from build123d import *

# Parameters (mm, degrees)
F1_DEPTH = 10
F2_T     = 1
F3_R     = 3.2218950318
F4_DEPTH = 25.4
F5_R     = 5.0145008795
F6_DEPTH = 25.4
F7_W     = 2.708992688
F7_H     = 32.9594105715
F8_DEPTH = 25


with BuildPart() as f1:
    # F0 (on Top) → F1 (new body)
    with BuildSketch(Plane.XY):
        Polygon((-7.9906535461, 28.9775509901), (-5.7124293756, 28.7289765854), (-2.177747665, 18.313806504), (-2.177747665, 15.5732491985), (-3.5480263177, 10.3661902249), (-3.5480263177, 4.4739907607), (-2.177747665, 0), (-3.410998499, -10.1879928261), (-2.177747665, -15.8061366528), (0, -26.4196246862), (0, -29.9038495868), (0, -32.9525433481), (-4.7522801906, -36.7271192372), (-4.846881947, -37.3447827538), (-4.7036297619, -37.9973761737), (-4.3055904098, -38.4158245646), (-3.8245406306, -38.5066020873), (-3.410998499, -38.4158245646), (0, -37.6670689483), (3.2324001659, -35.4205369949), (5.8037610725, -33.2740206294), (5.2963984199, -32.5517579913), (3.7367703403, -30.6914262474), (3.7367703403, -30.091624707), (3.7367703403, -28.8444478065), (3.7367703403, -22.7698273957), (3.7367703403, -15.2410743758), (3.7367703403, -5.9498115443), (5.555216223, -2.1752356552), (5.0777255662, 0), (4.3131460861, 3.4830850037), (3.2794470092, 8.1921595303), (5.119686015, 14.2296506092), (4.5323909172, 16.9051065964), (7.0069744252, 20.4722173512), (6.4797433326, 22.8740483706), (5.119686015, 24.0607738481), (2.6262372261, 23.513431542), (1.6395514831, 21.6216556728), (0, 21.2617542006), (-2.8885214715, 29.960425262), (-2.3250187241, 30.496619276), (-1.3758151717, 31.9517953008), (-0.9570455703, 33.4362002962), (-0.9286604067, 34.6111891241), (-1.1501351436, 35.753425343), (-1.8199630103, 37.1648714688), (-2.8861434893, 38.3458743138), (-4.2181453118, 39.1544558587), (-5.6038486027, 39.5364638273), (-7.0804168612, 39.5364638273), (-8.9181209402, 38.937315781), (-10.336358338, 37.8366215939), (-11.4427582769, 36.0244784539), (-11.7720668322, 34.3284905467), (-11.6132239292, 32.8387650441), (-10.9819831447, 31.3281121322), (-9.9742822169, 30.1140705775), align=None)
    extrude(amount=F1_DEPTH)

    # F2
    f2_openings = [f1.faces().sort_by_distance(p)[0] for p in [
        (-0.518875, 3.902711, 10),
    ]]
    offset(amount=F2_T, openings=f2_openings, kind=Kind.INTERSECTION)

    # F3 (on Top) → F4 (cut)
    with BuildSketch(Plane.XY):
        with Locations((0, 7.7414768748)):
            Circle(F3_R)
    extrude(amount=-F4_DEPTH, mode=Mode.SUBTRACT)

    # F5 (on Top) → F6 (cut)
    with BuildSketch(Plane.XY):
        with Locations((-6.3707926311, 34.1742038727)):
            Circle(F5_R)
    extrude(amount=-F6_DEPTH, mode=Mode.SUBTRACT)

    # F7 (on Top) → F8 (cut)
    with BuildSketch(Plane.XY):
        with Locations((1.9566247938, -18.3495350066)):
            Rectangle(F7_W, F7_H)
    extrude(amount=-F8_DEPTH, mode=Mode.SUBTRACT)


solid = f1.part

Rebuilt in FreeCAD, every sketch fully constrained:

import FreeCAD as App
import Part
import Sketcher
from FreeCAD import Vector


def faces_at(feature, points):
    """Names of the faces that lie closest to the given points."""
    faces = feature.Shape.Faces
    near = lambda p: min(range(len(faces)), key=lambda i: faces[i].distToShape(Part.Vertex(*p))[0])
    return sorted({f"Face{near(p) + 1}" for p in points})

doc = App.newDocument("Part")
params = doc.addObject("Spreadsheet::Sheet", "Params")
for row, (alias, value) in enumerate([
    ("pad1_length", "10 mm"),
    ("thickness_wall", "1 mm"),
    ("pocket1_length", "25.4 mm"),
    ("pocket2_length", "25.4 mm"),
    ("pocket3_length", "25 mm"),
], start=1):
    params.set(f"A{row}", alias)
    params.set(f"B{row}", "=" + value)
    params.setAlias(f"B{row}", alias)

body = doc.addObject("PartDesign::Body", "Body")

sketch1 = body.newObject("Sketcher::SketchObject", "Sketch")
sketch1.AttachmentSupport = (doc.getObject("XY_Plane"), [""])
sketch1.MapMode = "FlatFace"
sketch1.addGeometry([
    Part.LineSegment(Vector(-7.990654, 28.977551, 0), Vector(-5.712429, 28.728977, 0)),
    Part.LineSegment(Vector(-5.712429, 28.728977, 0), Vector(-2.177748, 18.313807, 0)),
    Part.LineSegment(Vector(-2.177748, 18.313807, 0), Vector(-2.177748, 15.573249, 0)),
    Part.LineSegment(Vector(-2.177748, 15.573249, 0), Vector(-3.548026, 10.36619, 0)),
    Part.LineSegment(Vector(-3.548026, 10.36619, 0), Vector(-3.548026, 4.473991, 0)),
    Part.LineSegment(Vector(-3.548026, 4.473991, 0), Vector(-2.177748, 0, 0)),
    Part.LineSegment(Vector(-2.177748, 0, 0), Vector(-3.410998, -10.187993, 0)),
    Part.LineSegment(Vector(-3.410998, -10.187993, 0), Vector(-2.177748, -15.806137, 0)),
    Part.LineSegment(Vector(-2.177748, -15.806137, 0), Vector(0, -26.419625, 0)),
    Part.LineSegment(Vector(0, -26.419625, 0), Vector(0, -32.952543, 0)),
    Part.LineSegment(Vector(0, -32.952543, 0), Vector(-4.75228, -36.727119, 0)),
    Part.LineSegment(Vector(-4.75228, -36.727119, 0), Vector(-4.846882, -37.344783, 0)),
    Part.LineSegment(Vector(-4.846882, -37.344783, 0), Vector(-4.70363, -37.997376, 0)),
    Part.LineSegment(Vector(-4.70363, -37.997376, 0), Vector(-4.30559, -38.415825, 0)),
    Part.LineSegment(Vector(-4.30559, -38.415825, 0), Vector(-3.824541, -38.506602, 0)),
    Part.LineSegment(Vector(-3.824541, -38.506602, 0), Vector(-3.410998, -38.415825, 0)),
    Part.LineSegment(Vector(-3.410998, -38.415825, 0), Vector(0, -37.667069, 0)),
    Part.LineSegment(Vector(0, -37.667069, 0), Vector(3.2324, -35.420537, 0)),
    Part.LineSegment(Vector(3.2324, -35.420537, 0), Vector(5.803761, -33.274021, 0)),
    Part.LineSegment(Vector(5.803761, -33.274021, 0), Vector(5.296398, -32.551758, 0)),
    Part.LineSegment(Vector(5.296398, -32.551758, 0), Vector(3.73677, -30.691426, 0)),
    Part.LineSegment(Vector(3.73677, -30.691426, 0), Vector(3.73677, -5.949812, 0)),
    Part.LineSegment(Vector(3.73677, -5.949812, 0), Vector(5.555216, -2.175236, 0)),
    Part.LineSegment(Vector(5.555216, -2.175236, 0), Vector(5.077726, 0, 0)),
    Part.LineSegment(Vector(5.077726, 0, 0), Vector(4.313146, 3.483085, 0)),
    Part.LineSegment(Vector(4.313146, 3.483085, 0), Vector(3.279447, 8.19216, 0)),
    Part.LineSegment(Vector(3.279447, 8.19216, 0), Vector(5.119686, 14.229651, 0)),
    Part.LineSegment(Vector(5.119686, 14.229651, 0), Vector(4.532391, 16.905107, 0)),
    Part.LineSegment(Vector(4.532391, 16.905107, 0), Vector(7.006974, 20.472217, 0)),
    Part.LineSegment(Vector(7.006974, 20.472217, 0), Vector(6.479743, 22.874048, 0)),
    Part.LineSegment(Vector(6.479743, 22.874048, 0), Vector(5.119686, 24.060774, 0)),
    Part.LineSegment(Vector(5.119686, 24.060774, 0), Vector(2.626237, 23.513432, 0)),
    Part.LineSegment(Vector(2.626237, 23.513432, 0), Vector(1.639551, 21.621656, 0)),
    Part.LineSegment(Vector(1.639551, 21.621656, 0), Vector(0, 21.261754, 0)),
    Part.LineSegment(Vector(0, 21.261754, 0), Vector(-2.888521, 29.960425, 0)),
    Part.LineSegment(Vector(-2.888521, 29.960425, 0), Vector(-2.325019, 30.496619, 0)),
    Part.LineSegment(Vector(-2.325019, 30.496619, 0), Vector(-1.375815, 31.951795, 0)),
    Part.LineSegment(Vector(-1.375815, 31.951795, 0), Vector(-0.957046, 33.4362, 0)),
    Part.LineSegment(Vector(-0.957046, 33.4362, 0), Vector(-0.92866, 34.611189, 0)),
    Part.LineSegment(Vector(-0.92866, 34.611189, 0), Vector(-1.150135, 35.753425, 0)),
    Part.LineSegment(Vector(-1.150135, 35.753425, 0), Vector(-1.819963, 37.164871, 0)),
    Part.LineSegment(Vector(-1.819963, 37.164871, 0), Vector(-2.886143, 38.345874, 0)),
    Part.LineSegment(Vector(-2.886143, 38.345874, 0), Vector(-4.218145, 39.154456, 0)),
    Part.LineSegment(Vector(-4.218145, 39.154456, 0), Vector(-5.603849, 39.536464, 0)),
    Part.LineSegment(Vector(-5.603849, 39.536464, 0), Vector(-7.080417, 39.536464, 0)),
    Part.LineSegment(Vector(-7.080417, 39.536464, 0), Vector(-8.918121, 38.937316, 0)),
    Part.LineSegment(Vector(-8.918121, 38.937316, 0), Vector(-10.336358, 37.836622, 0)),
    Part.LineSegment(Vector(-10.336358, 37.836622, 0), Vector(-11.442758, 36.024478, 0)),
    Part.LineSegment(Vector(-11.442758, 36.024478, 0), Vector(-11.772067, 34.328491, 0)),
    Part.LineSegment(Vector(-11.772067, 34.328491, 0), Vector(-11.613224, 32.838765, 0)),
    Part.LineSegment(Vector(-11.613224, 32.838765, 0), Vector(-10.981983, 31.328112, 0)),
    Part.LineSegment(Vector(-10.981983, 31.328112, 0), Vector(-9.974282, 30.114071, 0)),
    Part.LineSegment(Vector(-9.974282, 30.114071, 0), Vector(-7.990654, 28.977551, 0)),
], False)
sketch1.addConstraint([
    Sketcher.Constraint("Coincident", 0, 2, 1, 1),
    Sketcher.Constraint("Coincident", 1, 2, 2, 1),
    Sketcher.Constraint("Coincident", 2, 2, 3, 1),
    Sketcher.Constraint("Coincident", 3, 2, 4, 1),
    Sketcher.Constraint("Coincident", 4, 2, 5, 1),
    Sketcher.Constraint("Coincident", 5, 2, 6, 1),
    Sketcher.Constraint("Coincident", 6, 2, 7, 1),
    Sketcher.Constraint("Coincident", 7, 2, 8, 1),
    Sketcher.Constraint("Coincident", 8, 2, 9, 1),
    Sketcher.Constraint("Coincident", 9, 2, 10, 1),
    Sketcher.Constraint("Coincident", 10, 2, 11, 1),
    Sketcher.Constraint("Coincident", 11, 2, 12, 1),
    Sketcher.Constraint("Coincident", 12, 2, 13, 1),
    Sketcher.Constraint("Coincident", 13, 2, 14, 1),
    Sketcher.Constraint("Coincident", 14, 2, 15, 1),
    Sketcher.Constraint("Coincident", 15, 2, 16, 1),
    Sketcher.Constraint("Coincident", 16, 2, 17, 1),
    Sketcher.Constraint("Coincident", 17, 2, 18, 1),
    Sketcher.Constraint("Coincident", 18, 2, 19, 1),
    Sketcher.Constraint("Coincident", 19, 2, 20, 1),
    Sketcher.Constraint("Coincident", 20, 2, 21, 1),
    Sketcher.Constraint("Coincident", 21, 2, 22, 1),
    Sketcher.Constraint("Coincident", 22, 2, 23, 1),
    Sketcher.Constraint("Coincident", 23, 2, 24, 1),
    Sketcher.Constraint("Coincident", 24, 2, 25, 1),
    Sketcher.Constraint("Coincident", 25, 2, 26, 1),
    Sketcher.Constraint("Coincident", 26, 2, 27, 1),
    Sketcher.Constraint("Coincident", 27, 2, 28, 1),
    Sketcher.Constraint("Coincident", 28, 2, 29, 1),
    Sketcher.Constraint("Coincident", 29, 2, 30, 1),
    Sketcher.Constraint("Coincident", 30, 2, 31, 1),
    Sketcher.Constraint("Coincident", 31, 2, 32, 1),
    Sketcher.Constraint("Coincident", 32, 2, 33, 1),
    Sketcher.Constraint("Coincident", 33, 2, 34, 1),
    Sketcher.Constraint("Coincident", 34, 2, 35, 1),
    Sketcher.Constraint("Coincident", 35, 2, 36, 1),
    Sketcher.Constraint("Coincident", 36, 2, 37, 1),
    Sketcher.Constraint("Coincident", 37, 2, 38, 1),
    Sketcher.Constraint("Coincident", 38, 2, 39, 1),
    Sketcher.Constraint("Coincident", 39, 2, 40, 1),
    Sketcher.Constraint("Coincident", 40, 2, 41, 1),
    Sketcher.Constraint("Coincident", 41, 2, 42, 1),
    Sketcher.Constraint("Coincident", 42, 2, 43, 1),
    Sketcher.Constraint("Coincident", 43, 2, 44, 1),
    Sketcher.Constraint("Coincident", 44, 2, 45, 1),
    Sketcher.Constraint("Coincident", 45, 2, 46, 1),
    Sketcher.Constraint("Coincident", 46, 2, 47, 1),
    Sketcher.Constraint("Coincident", 47, 2, 48, 1),
    Sketcher.Constraint("Coincident", 48, 2, 49, 1),
    Sketcher.Constraint("Coincident", 49, 2, 50, 1),
    Sketcher.Constraint("Coincident", 50, 2, 51, 1),
    Sketcher.Constraint("Coincident", 51, 2, 52, 1),
    Sketcher.Constraint("Coincident", 52, 2, 0, 1),
    Sketcher.Constraint("Vertical", 2),
    Sketcher.Constraint("Vertical", 4),
    Sketcher.Constraint("Vertical", 9),
    Sketcher.Constraint("Vertical", 21),
    Sketcher.Constraint("Horizontal", 44),
    Sketcher.Constraint("PointOnObject", 5, 2, -1),
    Sketcher.Constraint("PointOnObject", 8, 2, -2),
    Sketcher.Constraint("PointOnObject", 16, 2, -2),
    Sketcher.Constraint("PointOnObject", 23, 2, -1),
    Sketcher.Constraint("PointOnObject", 33, 2, -2),
    Sketcher.Constraint("Parallel", 7, 12),
    Sketcher.Constraint("Perpendicular", 12, 15),
    Sketcher.Constraint("Parallel", 15, 16),
    Sketcher.Constraint("Perpendicular", 16, 23),
    Sketcher.Constraint("Parallel", 23, 24),
    Sketcher.Constraint("Parallel", 24, 25),
    Sketcher.Constraint("Parallel", 25, 27),
    Sketcher.Constraint("Parallel", 27, 29),
    Sketcher.Constraint("Perpendicular", 29, 31),
    Sketcher.Constraint("Parallel", 31, 33),
    Sketcher.Constraint("Horizontal", 13, 2, 15, 2),
    Sketcher.Constraint("Vertical", 2, 2, 5, 2),
    Sketcher.Constraint("Vertical", 5, 2, 7, 2),
    Sketcher.Constraint("Vertical", 6, 2, 15, 2),
    Sketcher.Constraint("Vertical", 26, 2, 30, 2),
    Sketcher.Constraint("DistanceY", 4, 2, 4, 1, 5.892199),
    Sketcher.Constraint("DistanceX", 6, 2, -1, 1, 3.410998),
    Sketcher.Constraint("DistanceX", 17, 2, 19, 2, 2.063998),
    Sketcher.Constraint("DistanceY", 21, 2, 3, 2, 16.316002),
    Sketcher.Constraint("DistanceY", 34, 2, 39, 2, 5.793),
    Sketcher.Constraint("DistanceX", 42, 2, 41, 2, 1.332002),
    Sketcher.Constraint("Distance", 47, 2.123201),
    Sketcher.Constraint("DistanceX", 44, 2, 44, 1, 1.476568),
    Sketcher.Constraint("DistanceY", 9, 2, 9, 1, 6.532919),
    Sketcher.Constraint("DistanceX", -1, 1, 17, 2, 3.2324),
    Sketcher.Constraint("DistanceY", -1, 1, 37, 2, 33.4362),
    Sketcher.Constraint("DistanceY", 6, 2, 1, 2, 28.501799),
    Sketcher.Constraint("DistanceX", 11, 2, 10, 2, 0.094602),
    Sketcher.Constraint("DistanceY", 13, 2, 8, 2, 11.9962),
    Sketcher.Constraint("DistanceY", 20, 2, 8, 2, 4.271802),
    Sketcher.Constraint("DistanceX", 25, 2, 24, 2, 1.033699),
    Sketcher.Constraint("DistanceY", 26, 2, 2, 2, 1.343599),
    Sketcher.Constraint("DistanceY", 27, 2, 1, 2, 1.4087),
    Sketcher.Constraint("DistanceY", 2, 2, 29, 2, 7.300799),
    Sketcher.Constraint("DistanceX", 1, 2, 32, 2, 3.817299),
    Sketcher.Constraint("DistanceY", 33, 2, 32, 2, 0.359901),
    Sketcher.Constraint("DistanceX", 36, 2, 30, 2, 6.495501),
    Sketcher.Constraint("DistanceX", 42, 2, 37, 2, 3.2611),
    Sketcher.Constraint("DistanceX", 47, 2, 46, 2, 1.1064),
    Sketcher.Constraint("DistanceX", 50, 2, 51, 2, 1.007701),
    Sketcher.Constraint("Distance", 3, 5.384341),
    Sketcher.Constraint("Distance", 5, 4.67913),
    Sketcher.Constraint("Distance", 7, 5.751908),
    Sketcher.Constraint("Distance", 12, 0.668131),
    Sketcher.Constraint("Distance", 14, 0.48954),
    Sketcher.Constraint("Distance", 15, 0.423388),
    Sketcher.Constraint("Distance", 17, 3.936409),
    Sketcher.Constraint("Distance", 18, 3.349542),
    Sketcher.Constraint("Distance", 22, 4.18977),
    Sketcher.Constraint("Distance", 28, 4.34141),
    Sketcher.Constraint("Distance", 34, 9.165721),
    Sketcher.Constraint("Distance", 36, 1.73739),
    Sketcher.Constraint("Distance", 38, 1.175332),
    Sketcher.Constraint("Distance", 39, 1.16351),
    Sketcher.Constraint("Distance", 40, 1.562322),
    Sketcher.Constraint("Distance", 41, 1.591072),
    Sketcher.Constraint("Distance", 45, 1.932908),
    Sketcher.Constraint("Distance", 46, 1.795251),
    Sketcher.Constraint("Distance", 49, 1.49817),
    Sketcher.Constraint("Distance", 51, 1.57777),
    Sketcher.Constraint("DistanceY", 2, 2, 2, 1, 2.740557),
    Sketcher.Constraint("DistanceY", 21, 1, 21, 2, 24.741615),
    Sketcher.Constraint("DistanceX", 0, 2, -1, 1, 5.712429),
    Sketcher.Constraint("DistanceY", -1, 1, 2, 2, 15.573249),
    Sketcher.Constraint("DistanceX", 10, 2, -1, 1, 4.75228),
    Sketcher.Constraint("DistanceY", 10, 2, -1, 1, 36.727119),
    Sketcher.Constraint("DistanceX", -1, 1, 18, 2, 5.803761),
    Sketcher.Constraint("DistanceX", -1, 1, 20, 2, 3.73677),
    Sketcher.Constraint("DistanceY", -1, 1, 25, 2, 8.19216),
    Sketcher.Constraint("DistanceX", -1, 1, 27, 2, 4.532391),
    Sketcher.Constraint("DistanceY", -1, 1, 31, 2, 23.513432),
    Sketcher.Constraint("DistanceX", 34, 2, -1, 1, 2.888521),
    Sketcher.Constraint("DistanceX", 35, 2, -1, 1, 2.325019),
    Sketcher.Constraint("DistanceY", -1, 1, 35, 2, 30.496619),
    Sketcher.Constraint("DistanceX", 38, 2, -1, 1, 0.92866),
    Sketcher.Constraint("DistanceY", -1, 1, 38, 2, 34.611189),
    Sketcher.Constraint("DistanceY", -1, 1, 40, 2, 37.164871),
    Sketcher.Constraint("DistanceX", 43, 2, -1, 1, 5.603849),
    Sketcher.Constraint("DistanceX", 45, 2, -1, 1, 8.918121),
    Sketcher.Constraint("DistanceX", 46, 2, -1, 1, 10.336358),
    Sketcher.Constraint("DistanceY", -1, 1, 46, 2, 37.836622),
    Sketcher.Constraint("DistanceY", -1, 1, 48, 2, 34.328491),
    Sketcher.Constraint("DistanceY", -1, 1, 51, 2, 30.114071),
    Sketcher.Constraint("DistanceY", -1, 1, 52, 2, 28.977551),
    Sketcher.Constraint("DistanceY", 1, 2, 0, 2, 10.41517),
    Sketcher.Constraint("DistanceY", 11, 2, 9, 2, 4.392239),
    Sketcher.Constraint("DistanceY", 17, 2, 19, 2, 2.868779),
    Sketcher.Constraint("DistanceX", 23, 2, 22, 2, 0.477491),
    Sketcher.Constraint("DistanceY", 27, 2, 28, 2, 3.567111),
    Sketcher.Constraint("DistanceX", 31, 2, 30, 2, 2.493449),
    Sketcher.Constraint("DistanceY", 32, 2, 30, 2, 2.439118),
    Sketcher.Constraint("DistanceY", 41, 2, 42, 2, 0.808582),
    Sketcher.Constraint("DistanceX", 48, 2, 47, 2, 0.329309),
    Sketcher.Constraint("DistanceY", 49, 2, 45, 2, 6.098551),
    Sketcher.Constraint("DistanceX", 49, 2, 50, 2, 0.631241),
    Sketcher.Constraint("DistanceX", 51, 2, 52, 2, 1.983629),
])
pad1 = body.newObject("PartDesign::Pad", "Pad")
pad1.Profile = sketch1
pad1.setExpression("Length", "Params.pad1_length")
doc.recompute()

thickness = body.newObject("PartDesign::Thickness", "Thickness")
thickness.Base = (pad1, faces_at(pad1, [(-2.383, 31.732, 10)]))
thickness.setExpression("Value", "Params.thickness_wall")
thickness.Reversed = False
thickness.Join = "Intersection"

sketch2 = body.newObject("Sketcher::SketchObject", "Sketch001")
sketch2.AttachmentSupport = (doc.getObject("XY_Plane"), [""])
sketch2.MapMode = "FlatFace"
sketch2.addGeometry(Part.Circle(Vector(0, 7.741477, 0), Vector(0, 0, 1), 3.221895), False)
sketch2.addConstraint([
    Sketcher.Constraint("PointOnObject", 0, 3, -2),
    Sketcher.Constraint("Diameter", 0, 6.44379),
    Sketcher.Constraint("DistanceY", -1, 1, 0, 3, 7.741477),
])
pocket1 = body.newObject("PartDesign::Pocket", "Pocket")
pocket1.Profile = sketch2
pocket1.setExpression("Length", "Params.pocket1_length")

sketch3 = body.newObject("Sketcher::SketchObject", "Sketch002")
sketch3.AttachmentSupport = (doc.getObject("XY_Plane"), [""])
sketch3.MapMode = "FlatFace"
sketch3.addGeometry(Part.Circle(Vector(-6.370793, 34.174204, 0), Vector(0, 0, 1), 5.014501), False)
sketch3.addConstraint([
    Sketcher.Constraint("Diameter", 0, 10.029002),
    Sketcher.Constraint("DistanceX", 0, 3, -1, 1, 6.370793),
    Sketcher.Constraint("DistanceY", -1, 1, 0, 3, 34.174204),
])
pocket2 = body.newObject("PartDesign::Pocket", "Pocket001")
pocket2.Profile = sketch3
pocket2.setExpression("Length", "Params.pocket2_length")

sketch4 = body.newObject("Sketcher::SketchObject", "Sketch003")
sketch4.AttachmentSupport = (doc.getObject("XY_Plane"), [""])
sketch4.MapMode = "FlatFace"
sketch4.addGeometry([
    Part.LineSegment(Vector(0.602128, -1.86983, 0), Vector(0.602128, -34.82924, 0)),
    Part.LineSegment(Vector(0.602128, -34.82924, 0), Vector(3.311121, -34.82924, 0)),
    Part.LineSegment(Vector(3.311121, -34.82924, 0), Vector(3.311121, -1.86983, 0)),
    Part.LineSegment(Vector(3.311121, -1.86983, 0), Vector(0.602128, -1.86983, 0)),
], False)
sketch4.addConstraint([
    Sketcher.Constraint("Coincident", 0, 2, 1, 1),
    Sketcher.Constraint("Coincident", 1, 2, 2, 1),
    Sketcher.Constraint("Coincident", 2, 2, 3, 1),
    Sketcher.Constraint("Coincident", 3, 2, 0, 1),
    Sketcher.Constraint("Vertical", 0),
    Sketcher.Constraint("Horizontal", 1),
    Sketcher.Constraint("Vertical", 2),
    Sketcher.Constraint("Horizontal", 3),
    Sketcher.Constraint("DistanceY", 0, 2, 0, 1, 32.959411),
    Sketcher.Constraint("DistanceX", 1, 1, 1, 2, 2.708993),
    Sketcher.Constraint("DistanceX", -1, 1, 0, 2, 0.602128),
    Sketcher.Constraint("DistanceY", 0, 2, -1, 1, 34.82924),
])
pocket3 = body.newObject("PartDesign::Pocket", "Pocket002")
pocket3.Profile = sketch4
pocket3.setExpression("Length", "Params.pocket3_length")

doc.recompute()
